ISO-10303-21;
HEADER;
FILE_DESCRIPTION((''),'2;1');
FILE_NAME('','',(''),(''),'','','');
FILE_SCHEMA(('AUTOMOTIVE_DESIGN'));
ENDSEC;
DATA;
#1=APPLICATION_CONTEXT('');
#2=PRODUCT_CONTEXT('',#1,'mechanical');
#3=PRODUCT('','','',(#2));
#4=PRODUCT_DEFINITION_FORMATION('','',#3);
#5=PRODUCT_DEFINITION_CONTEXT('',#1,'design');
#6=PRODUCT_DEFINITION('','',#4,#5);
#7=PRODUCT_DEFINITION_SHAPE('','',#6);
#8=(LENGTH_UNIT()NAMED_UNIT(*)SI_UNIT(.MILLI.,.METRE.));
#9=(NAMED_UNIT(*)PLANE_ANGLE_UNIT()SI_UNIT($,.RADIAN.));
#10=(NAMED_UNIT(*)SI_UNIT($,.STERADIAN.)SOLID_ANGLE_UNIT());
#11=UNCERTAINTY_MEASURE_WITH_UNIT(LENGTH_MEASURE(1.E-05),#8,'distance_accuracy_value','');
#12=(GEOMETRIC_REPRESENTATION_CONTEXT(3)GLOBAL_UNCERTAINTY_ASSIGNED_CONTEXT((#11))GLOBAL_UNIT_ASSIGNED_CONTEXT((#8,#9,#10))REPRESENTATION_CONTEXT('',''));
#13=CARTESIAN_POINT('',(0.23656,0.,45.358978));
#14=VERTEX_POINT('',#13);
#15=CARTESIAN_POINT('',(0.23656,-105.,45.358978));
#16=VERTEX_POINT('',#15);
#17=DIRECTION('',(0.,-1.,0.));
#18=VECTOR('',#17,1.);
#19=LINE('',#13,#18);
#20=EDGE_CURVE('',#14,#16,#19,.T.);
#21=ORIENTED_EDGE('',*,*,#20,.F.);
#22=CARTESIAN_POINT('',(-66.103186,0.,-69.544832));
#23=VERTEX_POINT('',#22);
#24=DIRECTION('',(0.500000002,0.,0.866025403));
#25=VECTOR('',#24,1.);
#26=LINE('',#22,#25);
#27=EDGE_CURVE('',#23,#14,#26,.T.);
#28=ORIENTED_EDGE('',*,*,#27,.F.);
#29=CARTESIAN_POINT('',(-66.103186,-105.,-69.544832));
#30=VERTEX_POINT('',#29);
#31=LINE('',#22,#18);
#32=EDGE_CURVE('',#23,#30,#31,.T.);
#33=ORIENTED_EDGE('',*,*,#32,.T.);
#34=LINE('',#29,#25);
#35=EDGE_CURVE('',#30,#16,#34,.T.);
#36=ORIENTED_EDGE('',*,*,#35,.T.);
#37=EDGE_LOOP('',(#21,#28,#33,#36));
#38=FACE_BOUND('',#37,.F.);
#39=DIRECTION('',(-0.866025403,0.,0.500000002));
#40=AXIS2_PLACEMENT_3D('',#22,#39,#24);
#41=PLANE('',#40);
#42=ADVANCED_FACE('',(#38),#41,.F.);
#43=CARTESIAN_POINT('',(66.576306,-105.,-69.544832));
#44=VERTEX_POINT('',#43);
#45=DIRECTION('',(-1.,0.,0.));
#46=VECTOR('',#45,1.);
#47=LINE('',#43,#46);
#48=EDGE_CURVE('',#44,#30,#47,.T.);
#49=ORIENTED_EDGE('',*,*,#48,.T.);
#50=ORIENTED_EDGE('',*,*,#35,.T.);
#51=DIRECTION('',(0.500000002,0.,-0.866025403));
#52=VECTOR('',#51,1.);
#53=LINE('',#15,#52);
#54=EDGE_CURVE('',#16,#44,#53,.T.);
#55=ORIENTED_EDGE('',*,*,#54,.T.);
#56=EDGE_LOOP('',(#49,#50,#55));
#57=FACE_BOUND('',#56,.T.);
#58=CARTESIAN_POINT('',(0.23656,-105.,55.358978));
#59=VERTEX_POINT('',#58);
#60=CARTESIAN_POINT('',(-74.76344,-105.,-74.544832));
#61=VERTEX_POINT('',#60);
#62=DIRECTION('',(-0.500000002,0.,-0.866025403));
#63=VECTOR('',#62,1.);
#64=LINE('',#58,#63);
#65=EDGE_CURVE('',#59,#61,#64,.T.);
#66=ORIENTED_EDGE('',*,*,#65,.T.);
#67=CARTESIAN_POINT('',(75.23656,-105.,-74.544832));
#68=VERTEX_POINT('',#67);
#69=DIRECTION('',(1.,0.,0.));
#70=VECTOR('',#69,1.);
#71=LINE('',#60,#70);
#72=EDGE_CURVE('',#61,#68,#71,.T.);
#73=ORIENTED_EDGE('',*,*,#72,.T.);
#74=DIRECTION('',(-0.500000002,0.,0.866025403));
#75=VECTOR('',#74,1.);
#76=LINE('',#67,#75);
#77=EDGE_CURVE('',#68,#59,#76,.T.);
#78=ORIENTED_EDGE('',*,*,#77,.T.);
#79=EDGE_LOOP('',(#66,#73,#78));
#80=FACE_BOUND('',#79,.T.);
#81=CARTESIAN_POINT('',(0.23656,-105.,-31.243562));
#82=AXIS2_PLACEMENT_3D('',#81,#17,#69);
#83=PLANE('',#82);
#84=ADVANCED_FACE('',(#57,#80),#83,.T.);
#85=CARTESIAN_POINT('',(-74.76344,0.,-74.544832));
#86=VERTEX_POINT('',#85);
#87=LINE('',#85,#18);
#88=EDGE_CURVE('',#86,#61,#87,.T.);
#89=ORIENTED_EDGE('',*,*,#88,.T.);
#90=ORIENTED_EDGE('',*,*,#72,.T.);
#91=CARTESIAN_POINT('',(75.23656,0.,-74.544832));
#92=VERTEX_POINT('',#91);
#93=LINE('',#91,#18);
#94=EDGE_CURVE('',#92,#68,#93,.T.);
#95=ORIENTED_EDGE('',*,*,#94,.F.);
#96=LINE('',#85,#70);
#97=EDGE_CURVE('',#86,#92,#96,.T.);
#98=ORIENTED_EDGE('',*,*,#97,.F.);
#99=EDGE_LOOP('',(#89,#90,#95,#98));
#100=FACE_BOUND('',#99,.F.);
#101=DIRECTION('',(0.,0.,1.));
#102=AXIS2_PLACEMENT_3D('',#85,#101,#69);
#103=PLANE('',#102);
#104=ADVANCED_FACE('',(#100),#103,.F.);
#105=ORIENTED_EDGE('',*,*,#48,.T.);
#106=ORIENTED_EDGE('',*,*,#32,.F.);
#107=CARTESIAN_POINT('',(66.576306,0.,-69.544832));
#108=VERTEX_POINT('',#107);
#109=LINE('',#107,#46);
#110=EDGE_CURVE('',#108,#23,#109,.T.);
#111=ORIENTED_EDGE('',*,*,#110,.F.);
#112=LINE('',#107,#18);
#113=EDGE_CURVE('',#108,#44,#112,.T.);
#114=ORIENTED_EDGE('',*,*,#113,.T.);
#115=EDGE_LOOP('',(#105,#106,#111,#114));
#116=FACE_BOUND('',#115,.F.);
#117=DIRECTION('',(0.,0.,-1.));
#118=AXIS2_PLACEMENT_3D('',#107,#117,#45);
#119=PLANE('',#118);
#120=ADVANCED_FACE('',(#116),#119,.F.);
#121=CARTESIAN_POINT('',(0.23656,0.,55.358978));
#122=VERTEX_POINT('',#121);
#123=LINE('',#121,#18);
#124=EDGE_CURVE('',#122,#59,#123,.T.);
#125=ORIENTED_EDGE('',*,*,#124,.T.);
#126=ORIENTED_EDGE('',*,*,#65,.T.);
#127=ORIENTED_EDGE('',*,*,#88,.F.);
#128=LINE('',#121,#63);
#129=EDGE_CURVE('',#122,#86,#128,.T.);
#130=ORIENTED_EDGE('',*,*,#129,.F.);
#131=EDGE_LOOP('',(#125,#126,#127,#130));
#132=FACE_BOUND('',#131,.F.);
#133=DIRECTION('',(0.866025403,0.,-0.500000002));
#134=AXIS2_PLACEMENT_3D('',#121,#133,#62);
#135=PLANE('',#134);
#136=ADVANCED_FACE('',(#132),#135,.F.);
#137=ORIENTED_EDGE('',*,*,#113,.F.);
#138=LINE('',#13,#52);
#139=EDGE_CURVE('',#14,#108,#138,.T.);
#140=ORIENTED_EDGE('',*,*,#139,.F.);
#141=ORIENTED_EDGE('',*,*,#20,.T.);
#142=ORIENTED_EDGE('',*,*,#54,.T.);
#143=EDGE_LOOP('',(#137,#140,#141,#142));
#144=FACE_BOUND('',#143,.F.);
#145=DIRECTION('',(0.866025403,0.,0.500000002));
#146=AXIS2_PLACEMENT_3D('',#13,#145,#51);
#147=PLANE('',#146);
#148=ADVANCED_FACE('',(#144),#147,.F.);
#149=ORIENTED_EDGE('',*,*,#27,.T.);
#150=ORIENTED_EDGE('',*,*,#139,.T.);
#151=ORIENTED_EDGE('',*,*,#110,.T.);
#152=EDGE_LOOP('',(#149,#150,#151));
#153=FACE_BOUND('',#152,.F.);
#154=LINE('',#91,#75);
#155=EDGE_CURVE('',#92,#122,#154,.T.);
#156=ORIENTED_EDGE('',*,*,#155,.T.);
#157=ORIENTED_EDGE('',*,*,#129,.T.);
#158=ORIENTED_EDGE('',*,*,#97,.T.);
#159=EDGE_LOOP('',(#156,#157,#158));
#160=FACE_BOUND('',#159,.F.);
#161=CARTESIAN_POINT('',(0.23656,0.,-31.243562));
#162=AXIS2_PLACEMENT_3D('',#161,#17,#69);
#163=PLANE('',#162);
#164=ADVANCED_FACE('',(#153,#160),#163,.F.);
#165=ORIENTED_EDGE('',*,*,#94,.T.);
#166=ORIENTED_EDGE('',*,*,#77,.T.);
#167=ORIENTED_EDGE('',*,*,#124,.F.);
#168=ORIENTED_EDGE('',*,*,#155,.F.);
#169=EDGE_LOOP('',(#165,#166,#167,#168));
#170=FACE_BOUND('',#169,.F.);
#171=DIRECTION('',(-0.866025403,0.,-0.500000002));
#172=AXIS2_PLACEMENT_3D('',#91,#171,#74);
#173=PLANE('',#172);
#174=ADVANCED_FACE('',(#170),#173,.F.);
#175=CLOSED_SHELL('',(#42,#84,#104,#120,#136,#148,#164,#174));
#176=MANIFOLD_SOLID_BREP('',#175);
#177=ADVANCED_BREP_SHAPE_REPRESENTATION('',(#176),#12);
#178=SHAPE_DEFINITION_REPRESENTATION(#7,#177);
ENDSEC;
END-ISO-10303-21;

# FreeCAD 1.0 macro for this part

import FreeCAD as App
import Part
import Sketcher
Q = App.Units.Quantity


def add_polygon(sketch, points):
    """Adds a closed chain of lines whose ends are joined by coincident constraints."""
    first, n = sketch.GeometryCount, len(points)
    for a, b in zip(points, points[1:] + points[:1]):
        sketch.addGeometry(Part.LineSegment(App.Vector(*a, 0), App.Vector(*b, 0)), False)
    for i in range(n):
        sketch.addConstraint(Sketcher.Constraint("Coincident", first + i, 2, first + (i + 1) % n, 1))

doc = App.newDocument("Part")
body = doc.addObject("PartDesign::Body", "Body")

sketch1 = doc.addObject("Sketcher::SketchObject", "Sketch")
body.addObject(sketch1)
sketch1.AttachmentSupport = (doc.XZ_Plane, [""])
sketch1.MapMode = "FlatFace"
add_polygon(sketch1, [(0, 55), (-75, -75), (75, -75)])
add_polygon(sketch1, [(67, -70), (-66, -70), (0, 45)])
sketch1.addConstraint([
    Sketcher.Constraint("Horizontal", 1),
    Sketcher.Constraint("Horizontal", 3),
    Sketcher.Constraint("Parallel", 0, 4),
    Sketcher.Constraint("Parallel", 2, 5),
    Sketcher.Constraint("Vertical", 2, 2, 4, 2),
    Sketcher.Constraint("Equal", 0, 2),
    Sketcher.Constraint("DistanceX", 1, 1, 1, 2, 150.0),
    Sketcher.Constraint("Angle", 0, Q("-120 deg")),
    Sketcher.Constraint("DistanceY", 0, 2, 3, 2, 5.0),
    Sketcher.Constraint("DistanceY", 4, 2, 2, 2, 10.0),
    Sketcher.Constraint("DistanceX", 0, 2, -1, 1, 74.76344),
    Sketcher.Constraint("DistanceY", 0, 2, -1, 1, 74.544832),
])
pad1 = doc.addObject("PartDesign::Pad", "Pad")
body.addObject(pad1)
pad1.Profile = sketch1
pad1.Length = 105

doc.recompute()
